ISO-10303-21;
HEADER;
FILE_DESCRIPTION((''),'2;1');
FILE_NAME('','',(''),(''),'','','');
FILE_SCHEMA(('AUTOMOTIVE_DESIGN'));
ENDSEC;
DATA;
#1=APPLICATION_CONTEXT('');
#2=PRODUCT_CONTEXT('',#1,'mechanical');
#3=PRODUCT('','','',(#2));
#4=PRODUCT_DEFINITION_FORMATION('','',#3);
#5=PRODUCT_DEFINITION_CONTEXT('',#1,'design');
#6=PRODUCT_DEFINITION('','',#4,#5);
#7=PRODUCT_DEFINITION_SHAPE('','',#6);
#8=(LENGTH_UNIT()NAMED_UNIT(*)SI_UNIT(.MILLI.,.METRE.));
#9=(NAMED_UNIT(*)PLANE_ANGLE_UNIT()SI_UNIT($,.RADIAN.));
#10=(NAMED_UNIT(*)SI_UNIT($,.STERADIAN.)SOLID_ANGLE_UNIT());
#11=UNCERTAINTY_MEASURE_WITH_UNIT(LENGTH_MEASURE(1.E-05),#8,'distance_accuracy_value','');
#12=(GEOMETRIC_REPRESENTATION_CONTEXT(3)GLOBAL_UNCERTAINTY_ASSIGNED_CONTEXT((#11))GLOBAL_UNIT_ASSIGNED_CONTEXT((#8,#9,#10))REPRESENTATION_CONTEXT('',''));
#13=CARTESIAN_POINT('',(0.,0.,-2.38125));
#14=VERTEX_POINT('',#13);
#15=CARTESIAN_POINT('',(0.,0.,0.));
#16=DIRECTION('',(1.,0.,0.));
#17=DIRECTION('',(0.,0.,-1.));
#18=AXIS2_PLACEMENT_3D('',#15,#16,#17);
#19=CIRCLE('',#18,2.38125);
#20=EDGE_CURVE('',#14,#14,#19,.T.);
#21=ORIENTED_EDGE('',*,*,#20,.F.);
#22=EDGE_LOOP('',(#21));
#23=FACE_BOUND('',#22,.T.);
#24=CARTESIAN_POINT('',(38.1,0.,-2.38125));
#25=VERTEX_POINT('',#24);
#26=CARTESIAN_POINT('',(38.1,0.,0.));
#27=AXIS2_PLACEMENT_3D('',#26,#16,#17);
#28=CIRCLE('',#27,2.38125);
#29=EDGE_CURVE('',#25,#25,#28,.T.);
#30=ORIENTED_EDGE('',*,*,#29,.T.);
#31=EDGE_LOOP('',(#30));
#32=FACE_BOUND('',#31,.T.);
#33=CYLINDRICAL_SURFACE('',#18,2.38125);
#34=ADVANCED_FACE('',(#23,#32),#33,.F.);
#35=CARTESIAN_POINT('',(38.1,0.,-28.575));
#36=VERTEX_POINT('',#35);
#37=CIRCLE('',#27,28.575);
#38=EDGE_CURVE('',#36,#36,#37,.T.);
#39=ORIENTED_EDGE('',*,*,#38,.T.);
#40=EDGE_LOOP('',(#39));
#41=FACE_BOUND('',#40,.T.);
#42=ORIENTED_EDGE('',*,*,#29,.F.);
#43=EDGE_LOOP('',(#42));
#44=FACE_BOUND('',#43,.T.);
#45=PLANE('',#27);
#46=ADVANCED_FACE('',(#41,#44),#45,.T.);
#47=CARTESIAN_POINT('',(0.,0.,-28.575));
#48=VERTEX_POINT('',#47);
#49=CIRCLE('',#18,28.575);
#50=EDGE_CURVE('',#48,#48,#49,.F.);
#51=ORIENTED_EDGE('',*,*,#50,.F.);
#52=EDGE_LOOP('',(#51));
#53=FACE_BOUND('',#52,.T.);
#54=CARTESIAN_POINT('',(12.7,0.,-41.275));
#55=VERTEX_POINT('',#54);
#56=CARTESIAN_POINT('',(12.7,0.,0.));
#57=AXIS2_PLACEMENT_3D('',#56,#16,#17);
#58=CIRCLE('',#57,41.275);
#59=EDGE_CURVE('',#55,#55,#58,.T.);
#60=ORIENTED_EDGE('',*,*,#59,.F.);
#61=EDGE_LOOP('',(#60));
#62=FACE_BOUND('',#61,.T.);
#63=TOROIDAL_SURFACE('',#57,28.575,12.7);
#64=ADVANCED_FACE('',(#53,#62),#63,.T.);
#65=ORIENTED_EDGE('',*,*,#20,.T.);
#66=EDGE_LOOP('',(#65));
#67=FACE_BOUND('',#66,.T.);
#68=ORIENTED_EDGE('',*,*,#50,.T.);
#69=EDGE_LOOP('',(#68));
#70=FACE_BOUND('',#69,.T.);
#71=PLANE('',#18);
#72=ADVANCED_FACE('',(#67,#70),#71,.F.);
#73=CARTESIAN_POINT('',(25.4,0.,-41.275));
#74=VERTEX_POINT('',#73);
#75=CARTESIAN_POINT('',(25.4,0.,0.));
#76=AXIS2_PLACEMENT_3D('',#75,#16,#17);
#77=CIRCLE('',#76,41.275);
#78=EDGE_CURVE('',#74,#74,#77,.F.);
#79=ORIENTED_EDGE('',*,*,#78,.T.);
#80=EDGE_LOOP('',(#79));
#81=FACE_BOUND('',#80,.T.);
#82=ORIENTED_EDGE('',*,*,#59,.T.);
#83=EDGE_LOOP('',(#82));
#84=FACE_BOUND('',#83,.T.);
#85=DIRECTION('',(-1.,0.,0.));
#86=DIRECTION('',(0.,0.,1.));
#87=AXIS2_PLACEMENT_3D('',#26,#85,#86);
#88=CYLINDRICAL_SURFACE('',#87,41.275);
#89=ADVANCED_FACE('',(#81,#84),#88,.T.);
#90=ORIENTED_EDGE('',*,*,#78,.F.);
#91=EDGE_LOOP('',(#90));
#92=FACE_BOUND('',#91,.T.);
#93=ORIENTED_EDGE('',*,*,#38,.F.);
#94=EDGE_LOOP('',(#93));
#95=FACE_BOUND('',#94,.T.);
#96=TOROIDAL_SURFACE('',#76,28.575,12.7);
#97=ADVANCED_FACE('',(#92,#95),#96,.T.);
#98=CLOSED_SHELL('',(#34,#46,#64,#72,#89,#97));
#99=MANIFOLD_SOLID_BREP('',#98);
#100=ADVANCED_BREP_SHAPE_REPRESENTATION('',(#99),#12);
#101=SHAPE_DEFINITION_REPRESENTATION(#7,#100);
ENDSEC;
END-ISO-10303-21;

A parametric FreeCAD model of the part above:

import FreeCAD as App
import Part
import Sketcher

V = App.Vector
Q = App.Units.Quantity


def edges_at(feature, points):
    """Names of the edges that pass closest to the given points."""
    edges = feature.Shape.Edges
    near = lambda p: min(range(len(edges)), key=lambda i: edges[i].distToShape(Part.Vertex(*p))[0])
    return sorted({f"Edge{near(p) + 1}" for p in points})

doc = App.newDocument("Part")
params = doc.addObject("Spreadsheet::Sheet", "Params")
for row, (alias, value) in enumerate([
    ("sketch1_diameter", "3.25 in"),
    ("pad1_length", "1.5 in"),
    ("sketch2_diameter", "0.1875 in"),
    ("fillet_radius", "0.5 in"),
], start=1):
    params.set(f"A{row}", alias)
    params.set(f"B{row}", "=" + value)
    params.setAlias(f"B{row}", alias)

body = doc.addObject("PartDesign::Body", "Body")

# Sketch on YZ plane
sketch1 = body.newObject("Sketcher::SketchObject", "Sketch")
sketch1.AttachmentSupport = (doc.getObject("YZ_Plane"), [""])
sketch1.MapMode = "FlatFace"
sketch1.addGeometry(Part.Circle(V(0, 0, 0), V(0, 0, 1), 41), False)
sketch1.addConstraint([
    Sketcher.Constraint("Coincident", 0, 3, -1, 1),
    Sketcher.Constraint("Diameter", 0, Q("3.25 in")),
])
sketch1.setExpression("Constraints[1]", "Params.sketch1_diameter")
pad1 = body.newObject("PartDesign::Pad", "Pad")
pad1.Profile = sketch1
pad1.setExpression("Length", "Params.pad1_length")

# Sketch on YZ plane
sketch2 = body.newObject("Sketcher::SketchObject", "Sketch001")
sketch2.AttachmentSupport = (doc.getObject("YZ_Plane"), [""])
sketch2.MapMode = "FlatFace"
sketch2.AttachmentOffset = App.Placement(V(0, 0, 1.5 * 25.4), App.Rotation())
sketch2.addGeometry(Part.Circle(V(0, 0, 0), V(0, 0, 1), 2.4), False)
sketch2.addConstraint([
    Sketcher.Constraint("Coincident", 0, 3, -1, 1),
    Sketcher.Constraint("Diameter", 0, Q("0.1875 in")),
])
sketch2.setExpression("Constraints[1]", "Params.sketch2_diameter")
pocket1 = body.newObject("PartDesign::Pocket", "Pocket")
pocket1.Profile = sketch2
pocket1.Type = "ThroughAll"
doc.recompute()

fillet = body.newObject("PartDesign::Fillet", "Fillet")
fillet.Base = (pocket1, edges_at(pocket1, [(0, 0, 41.275), (38.1, 0, 41.275)]))
fillet.setExpression("Radius", "Params.fillet_radius")

doc.recompute()
